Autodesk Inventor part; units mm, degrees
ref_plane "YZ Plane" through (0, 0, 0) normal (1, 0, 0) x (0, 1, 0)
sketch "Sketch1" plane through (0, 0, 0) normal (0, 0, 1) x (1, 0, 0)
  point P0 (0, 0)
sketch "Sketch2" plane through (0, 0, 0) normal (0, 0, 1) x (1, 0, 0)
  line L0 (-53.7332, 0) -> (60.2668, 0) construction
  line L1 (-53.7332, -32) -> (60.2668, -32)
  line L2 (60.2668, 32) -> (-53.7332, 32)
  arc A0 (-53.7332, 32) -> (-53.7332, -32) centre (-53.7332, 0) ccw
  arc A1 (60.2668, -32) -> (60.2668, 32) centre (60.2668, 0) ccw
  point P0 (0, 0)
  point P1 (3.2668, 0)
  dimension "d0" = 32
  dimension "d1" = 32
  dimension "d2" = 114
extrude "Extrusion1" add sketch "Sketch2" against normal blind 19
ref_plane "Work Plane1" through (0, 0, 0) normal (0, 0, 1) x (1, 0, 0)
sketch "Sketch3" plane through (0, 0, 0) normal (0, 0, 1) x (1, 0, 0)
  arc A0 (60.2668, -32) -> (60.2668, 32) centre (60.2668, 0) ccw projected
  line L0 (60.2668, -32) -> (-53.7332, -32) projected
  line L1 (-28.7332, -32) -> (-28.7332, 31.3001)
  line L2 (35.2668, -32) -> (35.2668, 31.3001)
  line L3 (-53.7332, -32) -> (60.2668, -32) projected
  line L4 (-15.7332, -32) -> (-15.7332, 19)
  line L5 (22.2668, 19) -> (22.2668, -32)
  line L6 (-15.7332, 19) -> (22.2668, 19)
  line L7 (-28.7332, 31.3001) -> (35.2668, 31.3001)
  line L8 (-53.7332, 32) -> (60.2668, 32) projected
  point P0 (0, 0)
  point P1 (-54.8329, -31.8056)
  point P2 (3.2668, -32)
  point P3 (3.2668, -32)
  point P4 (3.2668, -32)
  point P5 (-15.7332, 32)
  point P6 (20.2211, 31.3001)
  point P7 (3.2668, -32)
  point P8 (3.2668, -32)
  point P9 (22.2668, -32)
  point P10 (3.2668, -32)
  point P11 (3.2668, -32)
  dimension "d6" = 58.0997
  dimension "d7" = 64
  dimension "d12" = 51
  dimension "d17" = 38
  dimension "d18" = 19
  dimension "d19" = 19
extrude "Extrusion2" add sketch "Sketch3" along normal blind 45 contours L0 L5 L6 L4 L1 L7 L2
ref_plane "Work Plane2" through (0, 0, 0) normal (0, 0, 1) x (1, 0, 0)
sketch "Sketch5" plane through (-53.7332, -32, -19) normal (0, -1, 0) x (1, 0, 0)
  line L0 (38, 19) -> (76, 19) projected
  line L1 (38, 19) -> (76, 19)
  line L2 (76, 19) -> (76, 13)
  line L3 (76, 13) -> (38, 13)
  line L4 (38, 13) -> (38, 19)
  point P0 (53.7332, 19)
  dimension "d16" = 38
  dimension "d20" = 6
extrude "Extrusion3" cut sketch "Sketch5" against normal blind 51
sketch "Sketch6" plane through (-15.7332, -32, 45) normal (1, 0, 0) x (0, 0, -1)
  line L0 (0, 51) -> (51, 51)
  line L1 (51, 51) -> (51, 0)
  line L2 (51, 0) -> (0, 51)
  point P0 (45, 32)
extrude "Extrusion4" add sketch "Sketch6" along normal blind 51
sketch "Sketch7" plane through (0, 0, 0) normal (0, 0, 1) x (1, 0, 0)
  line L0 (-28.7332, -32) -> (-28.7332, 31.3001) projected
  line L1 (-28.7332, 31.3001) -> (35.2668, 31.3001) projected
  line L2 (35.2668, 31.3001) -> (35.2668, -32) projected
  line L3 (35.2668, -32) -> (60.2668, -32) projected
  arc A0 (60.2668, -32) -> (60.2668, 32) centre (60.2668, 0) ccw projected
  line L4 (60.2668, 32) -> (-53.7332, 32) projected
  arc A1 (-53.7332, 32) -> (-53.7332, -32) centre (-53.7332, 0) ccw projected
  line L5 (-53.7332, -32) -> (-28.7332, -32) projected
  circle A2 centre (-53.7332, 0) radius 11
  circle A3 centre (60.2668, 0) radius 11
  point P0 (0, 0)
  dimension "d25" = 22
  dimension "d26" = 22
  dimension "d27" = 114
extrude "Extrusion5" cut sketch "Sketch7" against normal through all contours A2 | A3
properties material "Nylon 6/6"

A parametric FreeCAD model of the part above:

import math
import FreeCAD as App
import Part
import Sketcher
from FreeCAD import Vector

doc = App.newDocument("Part")
params = doc.addObject("Spreadsheet::Sheet", "Params")
for row, (alias, value) in enumerate([
    ("sketch1_radius", "32 mm"),
    ("sketch1_width", "114 mm"),
    ("pad1_length", "19 mm"),
    ("sketch2_width", "64 mm"),
    ("sketch2_width2", "38 mm"),
    ("sketch2_height", "51 mm"),
    ("sketch2_height2", "63.3 mm"),
    ("pad2_length", "45 mm"),
    ("sketch3_width", "38 mm"),
    ("sketch3_height", "6 mm"),
    ("pocket1_length", "51 mm"),
    ("sketch4_width", "51 mm"),
    ("pad3_length", "51 mm"),
    ("sketch5_diameter", "22 mm"),
], start=1):
    params.set(f"A{row}", alias)
    params.set(f"B{row}", "=" + value)
    params.setAlias(f"B{row}", alias)

body = doc.addObject("PartDesign::Body", "Body")

# Sketch on XY plane
sketch1 = doc.addObject("Sketcher::SketchObject", "Sketch")
body.addObject(sketch1)
sketch1.AttachmentSupport = (doc.XY_Plane, [""])
sketch1.MapMode = "FlatFace"
sketch1.addGeometry([
    Part.ArcOfCircle(Part.Circle(Vector(-54, 0, 0), Vector(0, 0, 1), 32), math.radians(90), math.radians(270)),
    Part.LineSegment(Vector(-54, -32, 0), Vector(60, -32, 0)),
    Part.ArcOfCircle(Part.Circle(Vector(60, 0, 0), Vector(0, 0, 1), 32), math.radians(-90), math.radians(90)),
    Part.LineSegment(Vector(60, 32, 0), Vector(-54, 32, 0)),
], False)
sketch1.addConstraint([
    Sketcher.Constraint("Tangent", 0, 2, 1, 1),
    Sketcher.Constraint("Tangent", 1, 2, 2, 1),
    Sketcher.Constraint("Tangent", 2, 2, 3, 1),
    Sketcher.Constraint("Tangent", 3, 2, 0, 1),
    Sketcher.Constraint("Horizontal", 1),
    Sketcher.Constraint("Horizontal", 3),
    Sketcher.Constraint("PointOnObject", 0, 3, -1),
    Sketcher.Constraint("Radius", 0, 32.0),
    Sketcher.Constraint("DistanceX", 1, 1, 1, 2, 114.0),
    Sketcher.Constraint("DistanceX", 0, 3, -1, 1, 53.7332),
])
sketch1.setExpression("Constraints[7]", "Params.sketch1_radius")
sketch1.setExpression("Constraints[8]", "Params.sketch1_width")
pad1 = doc.addObject("PartDesign::Pad", "Pad")
body.addObject(pad1)
pad1.Profile = sketch1
pad1.setExpression("Length", "Params.pad1_length")
pad1.Reversed = True

# Sketch on XY plane
sketch2 = doc.addObject("Sketcher::SketchObject", "Sketch001")
body.addObject(sketch2)
sketch2.AttachmentSupport = (doc.XY_Plane, [""])
sketch2.MapMode = "FlatFace"
sketch2.addGeometry([
    Part.LineSegment(Vector(22, -32, 0), Vector(35, -32, 0)),  # 0
    Part.LineSegment(Vector(35, -32, 0), Vector(35, 31, 0)),  # 1
    Part.LineSegment(Vector(35, 31, 0), Vector(-29, 31, 0)),  # 2
    Part.LineSegment(Vector(-29, 31, 0), Vector(-29, -32, 0)),  # 3
    Part.LineSegment(Vector(-29, -32, 0), Vector(-16, -32, 0)),  # 4
    Part.LineSegment(Vector(-16, -32, 0), Vector(-16, 19, 0)),  # 5
    Part.LineSegment(Vector(-16, 19, 0), Vector(22, 19, 0)),  # 6
    Part.LineSegment(Vector(22, 19, 0), Vector(22, -32, 0)),  # 7
], False)
sketch2.addConstraint([
    Sketcher.Constraint("Coincident", 0, 2, 1, 1),
    Sketcher.Constraint("Coincident", 1, 2, 2, 1),
    Sketcher.Constraint("Coincident", 2, 2, 3, 1),
    Sketcher.Constraint("Coincident", 3, 2, 4, 1),
    Sketcher.Constraint("Coincident", 4, 2, 5, 1),
    Sketcher.Constraint("Coincident", 5, 2, 6, 1),
    Sketcher.Constraint("Coincident", 6, 2, 7, 1),
    Sketcher.Constraint("Coincident", 7, 2, 0, 1),
    Sketcher.Constraint("Horizontal", 0),
    Sketcher.Constraint("Vertical", 1),
    Sketcher.Constraint("Horizontal", 2),
    Sketcher.Constraint("Vertical", 3),
    Sketcher.Constraint("Horizontal", 4),
    Sketcher.Constraint("Vertical", 5),
    Sketcher.Constraint("Horizontal", 6),
    Sketcher.Constraint("Vertical", 7),
    Sketcher.Constraint("Horizontal", 0, 2, 3, 2),
    Sketcher.Constraint("Equal", 0, 4),
    Sketcher.Constraint("DistanceX", 2, 2, 2, 1, 64.0),
    Sketcher.Constraint("DistanceX", 6, 1, 6, 2, 38.0),
    Sketcher.Constraint("DistanceY", 5, 1, 5, 2, 51.0),
    Sketcher.Constraint("DistanceY", -1, 1, 5, 2, 19.0),
    Sketcher.Constraint("DistanceY", 1, 1, 1, 2, 63.3),
    Sketcher.Constraint("DistanceX", -1, 1, 0, 2, 35.2668),
])
sketch2.setExpression("Constraints[18]", "Params.sketch2_width")
sketch2.setExpression("Constraints[19]", "Params.sketch2_width2")
sketch2.setExpression("Constraints[20]", "Params.sketch2_height")
sketch2.setExpression("Constraints[22]", "Params.sketch2_height2")
pad2 = doc.addObject("PartDesign::Pad", "Pad001")
body.addObject(pad2)
pad2.Profile = sketch2
pad2.setExpression("Length", "Params.pad2_length")

# Sketch on XZ plane
sketch3 = doc.addObject("Sketcher::SketchObject", "Sketch002")
body.addObject(sketch3)
sketch3.AttachmentSupport = (doc.XZ_Plane, [""])
sketch3.MapMode = "FlatFace"
sketch3.AttachmentOffset = App.Placement(Vector(0, 0, 32), App.Rotation())
sketch3.addGeometry([
    Part.LineSegment(Vector(22, 0, 0), Vector(-16, 0, 0)),
    Part.LineSegment(Vector(-16, 0, 0), Vector(-16, -6, 0)),
    Part.LineSegment(Vector(-16, -6, 0), Vector(22, -6, 0)),
    Part.LineSegment(Vector(22, -6, 0), Vector(22, 0, 0)),
], False)
sketch3.addConstraint([
    Sketcher.Constraint("Coincident", 0, 2, 1, 1),
    Sketcher.Constraint("Coincident", 1, 2, 2, 1),
    Sketcher.Constraint("Coincident", 2, 2, 3, 1),
    Sketcher.Constraint("Coincident", 3, 2, 0, 1),
    Sketcher.Constraint("Horizontal", 0),
    Sketcher.Constraint("Vertical", 1),
    Sketcher.Constraint("Horizontal", 2),
    Sketcher.Constraint("Vertical", 3),
    Sketcher.Constraint("PointOnObject", 0, 2, -1),
    Sketcher.Constraint("DistanceX", 0, 2, 0, 1, 38.0),
    Sketcher.Constraint("DistanceY", 1, 2, 1, 1, 6.0),
    Sketcher.Constraint("DistanceX", 0, 2, -1, 1, 15.7332),
])
sketch3.setExpression("Constraints[9]", "Params.sketch3_width")
sketch3.setExpression("Constraints[10]", "Params.sketch3_height")
pocket1 = doc.addObject("PartDesign::Pocket", "Pocket")
body.addObject(pocket1)
pocket1.Profile = sketch3
pocket1.setExpression("Length", "Params.pocket1_length")

# Sketch on YZ plane
sketch4 = doc.addObject("Sketcher::SketchObject", "Sketch003")
body.addObject(sketch4)
sketch4.AttachmentSupport = (doc.YZ_Plane, [""])
sketch4.MapMode = "FlatFace"
sketch4.AttachmentOffset = App.Placement(Vector(0, 0, -15.7332), App.Rotation())
sketch4.addGeometry([
    Part.LineSegment(Vector(19, -6, 0), Vector(19, 45, 0)),
    Part.LineSegment(Vector(19, 45, 0), Vector(-32, -6, 0)),
    Part.LineSegment(Vector(-32, -6, 0), Vector(19, -6, 0)),
], False)
sketch4.addConstraint([
    Sketcher.Constraint("Coincident", 0, 2, 1, 1),
    Sketcher.Constraint("Coincident", 1, 2, 2, 1),
    Sketcher.Constraint("Coincident", 2, 2, 0, 1),
    Sketcher.Constraint("Vertical", 0),
    Sketcher.Constraint("Horizontal", 2),
    Sketcher.Constraint("Equal", 2, 0),
    Sketcher.Constraint("DistanceX", 2, 1, 2, 2, 51.0),
    Sketcher.Constraint("DistanceX", -1, 1, 0, 2, 19.0),
    Sketcher.Constraint("DistanceY", -1, 1, 0, 2, 45.0),
])
sketch4.setExpression("Constraints[6]", "Params.sketch4_width")
pad3 = doc.addObject("PartDesign::Pad", "Pad002")
body.addObject(pad3)
pad3.Profile = sketch4
pad3.setExpression("Length", "Params.pad3_length")

# Sketch on XY plane
sketch5 = doc.addObject("Sketcher::SketchObject", "Sketch004")
body.addObject(sketch5)
sketch5.AttachmentSupport = (doc.XY_Plane, [""])
sketch5.MapMode = "FlatFace"
sketch5.addGeometry([
    Part.Circle(Vector(-54, 0, 0), Vector(0, 0, 1), 11),
    Part.Circle(Vector(60, 0, 0), Vector(0, 0, 1), 11),
], False)
sketch5.addConstraint([
    Sketcher.Constraint("Equal", 0, 1),
    Sketcher.Constraint("PointOnObject", 0, 3, -1),
    Sketcher.Constraint("PointOnObject", 1, 3, -1),
    Sketcher.Constraint("Diameter", 0, 22.0),
    Sketcher.Constraint("DistanceX", 0, 3, 1, 3, 114.0),
    Sketcher.Constraint("DistanceX", 0, 3, -1, 1, 53.7332),
])
sketch5.setExpression("Constraints[3]", "Params.sketch5_diameter")
pocket2 = doc.addObject("PartDesign::Pocket", "Pocket001")
body.addObject(pocket2)
pocket2.Profile = sketch5
pocket2.Type = "ThroughAll"

doc.recompute()
